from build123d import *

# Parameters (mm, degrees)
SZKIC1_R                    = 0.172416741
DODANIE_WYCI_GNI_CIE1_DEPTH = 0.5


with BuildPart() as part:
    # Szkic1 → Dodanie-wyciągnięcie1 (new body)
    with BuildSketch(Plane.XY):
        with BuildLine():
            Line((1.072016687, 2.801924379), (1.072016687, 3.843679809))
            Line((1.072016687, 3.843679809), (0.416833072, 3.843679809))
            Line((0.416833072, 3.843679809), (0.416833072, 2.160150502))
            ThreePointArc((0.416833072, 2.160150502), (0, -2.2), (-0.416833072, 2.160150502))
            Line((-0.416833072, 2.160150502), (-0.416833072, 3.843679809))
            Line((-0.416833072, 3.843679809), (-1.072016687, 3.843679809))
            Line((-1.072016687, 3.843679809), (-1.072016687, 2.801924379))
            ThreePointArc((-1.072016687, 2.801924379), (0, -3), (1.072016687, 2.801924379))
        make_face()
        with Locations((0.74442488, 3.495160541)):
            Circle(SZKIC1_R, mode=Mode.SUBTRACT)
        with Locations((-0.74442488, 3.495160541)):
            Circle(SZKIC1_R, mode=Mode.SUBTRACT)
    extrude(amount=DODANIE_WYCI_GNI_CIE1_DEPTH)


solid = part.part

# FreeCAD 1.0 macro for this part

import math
import FreeCAD as App
import Part
import Sketcher
Q = App.Units.Quantity

doc = App.newDocument("Part")
body = doc.addObject("PartDesign::Body", "Body")

sketch1 = body.newObject("Sketcher::SketchObject", "Sketch")
sketch1.AttachmentSupport = (doc.getObject("XY_Plane"), [""])
sketch1.MapMode = "FlatFace"
sketch1.addGeometry(Part.LineSegment(App.Vector(1.072017, 2.801924, 0), App.Vector(1.072017, 3.84368, 0)), False)
sketch1.addGeometry(Part.LineSegment(App.Vector(1.072017, 3.84368, 0), App.Vector(0.416833, 3.84368, 0)), False)
sketch1.addGeometry(Part.LineSegment(App.Vector(0.416833, 3.84368, 0), App.Vector(0.416833, 2.160151, 0)), False)
sketch1.addGeometry(Part.ArcOfCircle(Part.Circle(App.Vector(0, 0, 0), App.Vector(0, 0, 1), 2.2), math.radians(100.921831), math.radians(439.078169)), False)
sketch1.addGeometry(Part.LineSegment(App.Vector(-0.416833, 2.160151, 0), App.Vector(-0.416833, 3.84368, 0)), False)
sketch1.addGeometry(Part.LineSegment(App.Vector(-0.416833, 3.84368, 0), App.Vector(-1.072017, 3.84368, 0)), False)
sketch1.addGeometry(Part.LineSegment(App.Vector(-1.072017, 3.84368, 0), App.Vector(-1.072017, 2.801924, 0)), False)
sketch1.addGeometry(Part.ArcOfCircle(Part.Circle(App.Vector(0, 0, 0), App.Vector(0, 0, 1), 3), math.radians(110.936858), math.radians(429.063142)), False)
sketch1.addGeometry(Part.Circle(App.Vector(-0.744425, 3.495161, 0), App.Vector(0, 0, 1), 0.172417), False)
sketch1.addGeometry(Part.Circle(App.Vector(0.744425, 3.495161, 0), App.Vector(0, 0, 1), 0.172417), False)
sketch1.addConstraint(Sketcher.Constraint("Coincident", 0, 2, 1, 1))
sketch1.addConstraint(Sketcher.Constraint("Coincident", 1, 2, 2, 1))
sketch1.addConstraint(Sketcher.Constraint("Coincident", 2, 2, 3, 2))
sketch1.addConstraint(Sketcher.Constraint("Coincident", 3, 1, 4, 1))
sketch1.addConstraint(Sketcher.Constraint("Coincident", 4, 2, 5, 1))
sketch1.addConstraint(Sketcher.Constraint("Coincident", 5, 2, 6, 1))
sketch1.addConstraint(Sketcher.Constraint("Coincident", 6, 2, 7, 1))
sketch1.addConstraint(Sketcher.Constraint("Coincident", 7, 2, 0, 1))
sketch1.addConstraint(Sketcher.Constraint("Vertical", 0))
sketch1.addConstraint(Sketcher.Constraint("Horizontal", 1))
sketch1.addConstraint(Sketcher.Constraint("Vertical", 2))
sketch1.addConstraint(Sketcher.Constraint("Vertical", 4))
sketch1.addConstraint(Sketcher.Constraint("Horizontal", 5))
sketch1.addConstraint(Sketcher.Constraint("Vertical", 6))
sketch1.addConstraint(Sketcher.Constraint("Coincident", 3, 3, -1, 1))
sketch1.addConstraint(Sketcher.Constraint("Coincident", 7, 3, -1, 1))
sketch1.addConstraint(Sketcher.Constraint("Equal", 8, 9))
sketch1.addConstraint(Sketcher.Constraint("Symmetric", 8, 3, 9, 3, -2))
sketch1.addConstraint(Sketcher.Constraint("Symmetric", 1, 2, 4, 2, -2))
sketch1.addConstraint(Sketcher.Constraint("Horizontal", 6, 2, 7, 2))
sketch1.addConstraint(Sketcher.Constraint("Radius", 7, Q("3 mm")))
sketch1.addConstraint(Sketcher.Constraint("Radius", 3, Q("2.2 mm")))
sketch1.addConstraint(Sketcher.Constraint("Diameter", 8, Q("0.344833 mm")))
sketch1.addConstraint(Sketcher.Constraint("DistanceY", 2, 2, 2, 1, Q("1.683529 mm")))
sketch1.addConstraint(Sketcher.Constraint("DistanceX", 1, 2, 1, 1, Q("0.655184 mm")))
sketch1.addConstraint(Sketcher.Constraint("DistanceY", 0, 1, 0, 2, Q("1.041755 mm")))
sketch1.addConstraint(Sketcher.Constraint("DistanceY", -1, 1, 8, 3, Q("3.495161 mm")))
sketch1.addConstraint(Sketcher.Constraint("DistanceX", 8, 3, 9, 3, Q("1.48885 mm")))
pad1 = body.newObject("PartDesign::Pad", "Pad")
pad1.Profile = sketch1
pad1.Length = 0.5

doc.recompute()
